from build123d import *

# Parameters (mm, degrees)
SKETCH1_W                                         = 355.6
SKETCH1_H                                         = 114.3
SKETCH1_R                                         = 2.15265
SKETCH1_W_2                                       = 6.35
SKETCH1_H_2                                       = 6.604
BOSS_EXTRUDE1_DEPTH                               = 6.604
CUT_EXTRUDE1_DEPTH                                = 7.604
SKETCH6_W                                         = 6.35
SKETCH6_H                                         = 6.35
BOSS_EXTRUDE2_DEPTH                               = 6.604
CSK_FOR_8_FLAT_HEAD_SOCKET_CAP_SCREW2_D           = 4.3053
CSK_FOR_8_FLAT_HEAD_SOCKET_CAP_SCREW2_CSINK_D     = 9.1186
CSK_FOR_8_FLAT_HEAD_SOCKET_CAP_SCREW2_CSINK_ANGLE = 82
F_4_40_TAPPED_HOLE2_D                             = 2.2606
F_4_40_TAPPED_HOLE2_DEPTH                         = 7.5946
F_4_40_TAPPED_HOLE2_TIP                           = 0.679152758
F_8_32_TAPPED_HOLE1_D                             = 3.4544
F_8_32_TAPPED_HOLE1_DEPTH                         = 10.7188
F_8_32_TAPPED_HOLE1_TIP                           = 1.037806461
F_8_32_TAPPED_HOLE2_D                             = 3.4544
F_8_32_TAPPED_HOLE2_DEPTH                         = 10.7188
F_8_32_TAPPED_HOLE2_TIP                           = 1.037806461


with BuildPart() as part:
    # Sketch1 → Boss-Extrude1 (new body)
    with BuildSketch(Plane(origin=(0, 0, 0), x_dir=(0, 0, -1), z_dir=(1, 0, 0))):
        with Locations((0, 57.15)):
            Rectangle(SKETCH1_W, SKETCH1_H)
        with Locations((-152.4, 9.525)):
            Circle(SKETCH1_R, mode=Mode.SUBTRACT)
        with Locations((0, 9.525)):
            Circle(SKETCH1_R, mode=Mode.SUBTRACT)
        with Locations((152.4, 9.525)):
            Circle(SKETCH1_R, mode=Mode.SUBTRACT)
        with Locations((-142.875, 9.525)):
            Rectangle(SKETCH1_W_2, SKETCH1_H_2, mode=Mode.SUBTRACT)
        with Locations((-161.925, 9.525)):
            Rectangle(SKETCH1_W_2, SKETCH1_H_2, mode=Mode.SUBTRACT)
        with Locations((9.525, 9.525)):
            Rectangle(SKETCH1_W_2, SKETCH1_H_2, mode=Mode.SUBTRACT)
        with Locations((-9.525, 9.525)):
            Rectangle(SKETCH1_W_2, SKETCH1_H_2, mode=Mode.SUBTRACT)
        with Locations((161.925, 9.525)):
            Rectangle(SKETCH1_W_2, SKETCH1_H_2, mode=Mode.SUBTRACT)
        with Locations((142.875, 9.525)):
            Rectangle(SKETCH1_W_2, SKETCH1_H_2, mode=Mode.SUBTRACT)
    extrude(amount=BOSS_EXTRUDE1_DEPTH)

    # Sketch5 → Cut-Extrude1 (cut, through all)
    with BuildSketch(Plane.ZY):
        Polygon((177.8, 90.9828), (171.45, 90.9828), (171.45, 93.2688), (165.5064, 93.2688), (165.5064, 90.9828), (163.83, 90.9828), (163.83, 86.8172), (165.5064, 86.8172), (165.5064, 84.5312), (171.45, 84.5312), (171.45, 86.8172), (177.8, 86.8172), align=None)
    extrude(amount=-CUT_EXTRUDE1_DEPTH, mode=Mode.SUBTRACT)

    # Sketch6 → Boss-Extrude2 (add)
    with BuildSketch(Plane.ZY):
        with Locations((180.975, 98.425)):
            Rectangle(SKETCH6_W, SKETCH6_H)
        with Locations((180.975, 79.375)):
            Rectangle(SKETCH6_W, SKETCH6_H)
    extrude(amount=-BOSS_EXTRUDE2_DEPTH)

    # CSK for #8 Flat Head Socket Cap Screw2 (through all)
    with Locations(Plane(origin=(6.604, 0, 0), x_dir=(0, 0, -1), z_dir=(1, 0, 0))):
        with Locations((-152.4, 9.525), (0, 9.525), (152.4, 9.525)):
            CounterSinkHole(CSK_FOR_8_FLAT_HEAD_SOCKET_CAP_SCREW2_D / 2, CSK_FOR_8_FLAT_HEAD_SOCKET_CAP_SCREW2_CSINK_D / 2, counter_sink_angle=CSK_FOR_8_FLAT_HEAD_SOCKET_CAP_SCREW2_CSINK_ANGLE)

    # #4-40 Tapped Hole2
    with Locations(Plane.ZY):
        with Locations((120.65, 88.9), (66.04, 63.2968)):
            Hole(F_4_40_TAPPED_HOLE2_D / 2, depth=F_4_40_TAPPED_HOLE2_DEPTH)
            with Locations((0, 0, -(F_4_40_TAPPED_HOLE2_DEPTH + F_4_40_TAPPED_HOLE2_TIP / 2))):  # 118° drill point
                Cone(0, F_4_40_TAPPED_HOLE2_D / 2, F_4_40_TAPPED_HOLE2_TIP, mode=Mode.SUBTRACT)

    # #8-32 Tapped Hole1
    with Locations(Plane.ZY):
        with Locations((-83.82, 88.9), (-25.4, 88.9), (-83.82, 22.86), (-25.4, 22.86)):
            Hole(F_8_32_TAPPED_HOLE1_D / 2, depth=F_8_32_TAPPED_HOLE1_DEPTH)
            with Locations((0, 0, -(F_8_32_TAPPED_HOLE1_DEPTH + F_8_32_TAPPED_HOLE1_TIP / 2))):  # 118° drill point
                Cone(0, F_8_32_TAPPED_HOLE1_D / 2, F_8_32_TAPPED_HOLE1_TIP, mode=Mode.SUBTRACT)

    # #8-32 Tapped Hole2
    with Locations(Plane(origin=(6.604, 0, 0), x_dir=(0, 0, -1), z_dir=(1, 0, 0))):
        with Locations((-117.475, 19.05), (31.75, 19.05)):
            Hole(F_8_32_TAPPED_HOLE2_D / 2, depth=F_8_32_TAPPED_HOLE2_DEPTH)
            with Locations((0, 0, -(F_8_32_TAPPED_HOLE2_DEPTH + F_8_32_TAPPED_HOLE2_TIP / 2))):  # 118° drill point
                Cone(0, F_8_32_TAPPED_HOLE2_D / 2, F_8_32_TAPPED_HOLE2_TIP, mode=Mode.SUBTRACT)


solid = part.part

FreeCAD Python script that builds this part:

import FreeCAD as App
import Part
import Sketcher
from FreeCAD import Vector
Q = App.Units.Quantity

doc = App.newDocument("Part")
body = doc.addObject("PartDesign::Body", "Body")

sketch1 = body.newObject("Sketcher::SketchObject", "Sketch")
sketch1.AttachmentSupport = (doc.getObject("YZ_Plane"), [""])
sketch1.MapMode = "FlatFace"
sketch1.addGeometry(Part.LineSegment(Vector(114.3, 177.8, 0), Vector(0, 177.8, 0)), False)
sketch1.addGeometry(Part.LineSegment(Vector(0, 177.8, 0), Vector(0, -177.8, 0)), False)
sketch1.addGeometry(Part.LineSegment(Vector(0, -177.8, 0), Vector(114.3, -177.8, 0)), False)
sketch1.addGeometry(Part.LineSegment(Vector(114.3, -177.8, 0), Vector(114.3, 177.8, 0)), False)
sketch1.addGeometry(Part.LineSegment(Vector(6.2, 158.8, 0), Vector(6.2, 165.1, 0)), False)
sketch1.addGeometry(Part.LineSegment(Vector(6.2, 165.1, 0), Vector(12.8, 165.1, 0)), False)
sketch1.addGeometry(Part.LineSegment(Vector(12.8, 165.1, 0), Vector(12.8, 158.8, 0)), False)
sketch1.addGeometry(Part.LineSegment(Vector(12.8, 158.8, 0), Vector(6.2, 158.8, 0)), False)
sketch1.addGeometry(Part.Circle(Vector(9.5, 152.4, 0), Vector(0, 0, 1), 2.2), False)
sketch1.addGeometry(Part.LineSegment(Vector(6.2, 139.7, 0), Vector(6.2, 146.1, 0)), False)
sketch1.addGeometry(Part.LineSegment(Vector(6.2, 146.1, 0), Vector(12.8, 146.1, 0)), False)
sketch1.addGeometry(Part.LineSegment(Vector(12.8, 146.1, 0), Vector(12.8, 139.7, 0)), False)
sketch1.addGeometry(Part.LineSegment(Vector(12.8, 139.7, 0), Vector(6.2, 139.7, 0)), False)
sketch1.addGeometry(Part.LineSegment(Vector(6.2, 6.3, 0), Vector(6.2, 12.7, 0)), False)
sketch1.addGeometry(Part.LineSegment(Vector(6.2, 12.7, 0), Vector(12.8, 12.7, 0)), False)
sketch1.addGeometry(Part.LineSegment(Vector(12.8, 12.7, 0), Vector(12.8, 6.3, 0)), False)
sketch1.addGeometry(Part.LineSegment(Vector(12.8, 6.3, 0), Vector(6.2, 6.3, 0)), False)
sketch1.addGeometry(Part.Circle(Vector(9.5, 0, 0), Vector(0, 0, 1), 2.2), False)
sketch1.addGeometry(Part.LineSegment(Vector(6.2, -12.7, 0), Vector(6.2, -6.3, 0)), False)
sketch1.addGeometry(Part.LineSegment(Vector(6.2, -6.3, 0), Vector(12.8, -6.3, 0)), False)
sketch1.addGeometry(Part.LineSegment(Vector(12.8, -6.3, 0), Vector(12.8, -12.7, 0)), False)
sketch1.addGeometry(Part.LineSegment(Vector(12.8, -12.7, 0), Vector(6.2, -12.7, 0)), False)
sketch1.addGeometry(Part.LineSegment(Vector(6.2, -146.1, 0), Vector(6.2, -139.7, 0)), False)
sketch1.addGeometry(Part.LineSegment(Vector(6.2, -139.7, 0), Vector(12.8, -139.7, 0)), False)
sketch1.addGeometry(Part.LineSegment(Vector(12.8, -139.7, 0), Vector(12.8, -146.1, 0)), False)
sketch1.addGeometry(Part.LineSegment(Vector(12.8, -146.1, 0), Vector(6.2, -146.1, 0)), False)
sketch1.addGeometry(Part.Circle(Vector(9.5, -152.4, 0), Vector(0, 0, 1), 2.2), False)
sketch1.addGeometry(Part.LineSegment(Vector(6.2, -165.1, 0), Vector(6.2, -158.8, 0)), False)
sketch1.addGeometry(Part.LineSegment(Vector(6.2, -158.8, 0), Vector(12.8, -158.8, 0)), False)
sketch1.addGeometry(Part.LineSegment(Vector(12.8, -158.8, 0), Vector(12.8, -165.1, 0)), False)
sketch1.addGeometry(Part.LineSegment(Vector(12.8, -165.1, 0), Vector(6.2, -165.1, 0)), False)
sketch1.addConstraint(Sketcher.Constraint("Coincident", 0, 2, 1, 1))
sketch1.addConstraint(Sketcher.Constraint("Coincident", 1, 2, 2, 1))
sketch1.addConstraint(Sketcher.Constraint("Coincident", 2, 2, 3, 1))
sketch1.addConstraint(Sketcher.Constraint("Coincident", 3, 2, 0, 1))
sketch1.addConstraint(Sketcher.Constraint("Coincident", 4, 2, 5, 1))
sketch1.addConstraint(Sketcher.Constraint("Coincident", 5, 2, 6, 1))
sketch1.addConstraint(Sketcher.Constraint("Coincident", 6, 2, 7, 1))
sketch1.addConstraint(Sketcher.Constraint("Coincident", 7, 2, 4, 1))
sketch1.addConstraint(Sketcher.Constraint("Coincident", 9, 2, 10, 1))
sketch1.addConstraint(Sketcher.Constraint("Coincident", 10, 2, 11, 1))
sketch1.addConstraint(Sketcher.Constraint("Coincident", 11, 2, 12, 1))
sketch1.addConstraint(Sketcher.Constraint("Coincident", 12, 2, 9, 1))
sketch1.addConstraint(Sketcher.Constraint("Coincident", 13, 2, 14, 1))
sketch1.addConstraint(Sketcher.Constraint("Coincident", 14, 2, 15, 1))
sketch1.addConstraint(Sketcher.Constraint("Coincident", 15, 2, 16, 1))
sketch1.addConstraint(Sketcher.Constraint("Coincident", 16, 2, 13, 1))
sketch1.addConstraint(Sketcher.Constraint("Coincident", 18, 2, 19, 1))
sketch1.addConstraint(Sketcher.Constraint("Coincident", 19, 2, 20, 1))
sketch1.addConstraint(Sketcher.Constraint("Coincident", 20, 2, 21, 1))
sketch1.addConstraint(Sketcher.Constraint("Coincident", 21, 2, 18, 1))
sketch1.addConstraint(Sketcher.Constraint("Coincident", 22, 2, 23, 1))
sketch1.addConstraint(Sketcher.Constraint("Coincident", 23, 2, 24, 1))
sketch1.addConstraint(Sketcher.Constraint("Coincident", 24, 2, 25, 1))
sketch1.addConstraint(Sketcher.Constraint("Coincident", 25, 2, 22, 1))
sketch1.addConstraint(Sketcher.Constraint("Coincident", 27, 2, 28, 1))
sketch1.addConstraint(Sketcher.Constraint("Coincident", 28, 2, 29, 1))
sketch1.addConstraint(Sketcher.Constraint("Coincident", 29, 2, 30, 1))
sketch1.addConstraint(Sketcher.Constraint("Coincident", 30, 2, 27, 1))
sketch1.addConstraint(Sketcher.Constraint("Horizontal", 0))
sketch1.addConstraint(Sketcher.Constraint("Vertical", 1))
sketch1.addConstraint(Sketcher.Constraint("Horizontal", 2))
sketch1.addConstraint(Sketcher.Constraint("Vertical", 3))
sketch1.addConstraint(Sketcher.Constraint("Vertical", 4))
sketch1.addConstraint(Sketcher.Constraint("Horizontal", 5))
sketch1.addConstraint(Sketcher.Constraint("Vertical", 6))
sketch1.addConstraint(Sketcher.Constraint("Horizontal", 7))
sketch1.addConstraint(Sketcher.Constraint("Vertical", 9))
sketch1.addConstraint(Sketcher.Constraint("Horizontal", 10))
sketch1.addConstraint(Sketcher.Constraint("Vertical", 11))
sketch1.addConstraint(Sketcher.Constraint("Horizontal", 12))
sketch1.addConstraint(Sketcher.Constraint("Vertical", 13))
sketch1.addConstraint(Sketcher.Constraint("Horizontal", 14))
sketch1.addConstraint(Sketcher.Constraint("Vertical", 15))
sketch1.addConstraint(Sketcher.Constraint("Horizontal", 16))
sketch1.addConstraint(Sketcher.Constraint("Vertical", 18))
sketch1.addConstraint(Sketcher.Constraint("Horizontal", 19))
sketch1.addConstraint(Sketcher.Constraint("Vertical", 20))
sketch1.addConstraint(Sketcher.Constraint("Horizontal", 21))
sketch1.addConstraint(Sketcher.Constraint("Vertical", 22))
sketch1.addConstraint(Sketcher.Constraint("Horizontal", 23))
sketch1.addConstraint(Sketcher.Constraint("Vertical", 24))
sketch1.addConstraint(Sketcher.Constraint("Horizontal", 25))
sketch1.addConstraint(Sketcher.Constraint("Vertical", 27))
sketch1.addConstraint(Sketcher.Constraint("Horizontal", 28))
sketch1.addConstraint(Sketcher.Constraint("Vertical", 29))
sketch1.addConstraint(Sketcher.Constraint("Horizontal", 30))
sketch1.addConstraint(Sketcher.Constraint("Equal", 8, 17))
sketch1.addConstraint(Sketcher.Constraint("Equal", 17, 26))
sketch1.addConstraint(Sketcher.Constraint("Symmetric", 0, 2, 1, 2, -1, 1))
sketch1.addConstraint(Sketcher.Constraint("Symmetric", 8, 3, 26, 3, -1))
sketch1.addConstraint(Sketcher.Constraint("Symmetric", 16, 2, 18, 2, -1))
sketch1.addConstraint(Sketcher.Constraint("Symmetric", 14, 2, 20, 2, -1))
sketch1.addConstraint(Sketcher.Constraint("Symmetric", 12, 2, 22, 2, -1))
sketch1.addConstraint(Sketcher.Constraint("Symmetric", 10, 2, 24, 2, -1))
sketch1.addConstraint(Sketcher.Constraint("Symmetric", 7, 2, 27, 2, -1))
sketch1.addConstraint(Sketcher.Constraint("Symmetric", 5, 2, 29, 2, -1))
sketch1.addConstraint(Sketcher.Constraint("PointOnObject", 17, 3, -1))
sketch1.addConstraint(Sketcher.Constraint("Vertical", 8, 3, 17, 3))
sketch1.addConstraint(Sketcher.Constraint("Vertical", 7, 2, 9, 2))
sketch1.addConstraint(Sketcher.Constraint("Vertical", 6, 2, 10, 2))
sketch1.addConstraint(Sketcher.Constraint("Vertical", 12, 2, 13, 2))
sketch1.addConstraint(Sketcher.Constraint("Vertical", 11, 2, 14, 2))
sketch1.addConstraint(Sketcher.Constraint("Equal", 6, 9))
sketch1.addConstraint(Sketcher.Constraint("Equal", 11, 13))
sketch1.addConstraint(Sketcher.Constraint("DistanceY", 1, 2, 1, 1, Q("14 in")))
sketch1.addConstraint(Sketcher.Constraint("DistanceX", 0, 2, 0, 1, Q("4.5 in")))
sketch1.addConstraint(Sketcher.Constraint("DistanceY", -1, 1, 8, 3, Q("6 in")))
sketch1.addConstraint(Sketcher.Constraint("DistanceY", 13, 2, 12, 2, Q("5 in")))
sketch1.addConstraint(Sketcher.Constraint("Diameter", 8, Q("0.1695 in")))
sketch1.addConstraint(Sketcher.Constraint("DistanceX", 5, 1, 5, 2, Q("0.26 in")))
sketch1.addConstraint(Sketcher.Constraint("DistanceY", 4, 1, 4, 2, Q("0.25 in")))
sketch1.addConstraint(Sketcher.Constraint("DistanceY", -1, 1, 4, 2, Q("6.5 in")))
sketch1.addConstraint(Sketcher.Constraint("DistanceY", -1, 1, 11, 2, Q("5.5 in")))
sketch1.addConstraint(Sketcher.Constraint("DistanceX", 4, 2, 8, 3, Q("0.13 in")))
sketch1.addConstraint(Sketcher.Constraint("DistanceX", -1, 1, 8, 3, Q("0.375 in")))
pad1 = body.newObject("PartDesign::Pad", "Pad")
pad1.Profile = sketch1
pad1.Length = Q("0.26 in")

sketch2 = body.newObject("Sketcher::SketchObject", "Sketch001")
sketch2.AttachmentSupport = (doc.getObject("YZ_Plane"), [""])
sketch2.MapMode = "FlatFace"
sketch2.addGeometry(Part.LineSegment(Vector(91, 177.8, 0), Vector(91, 171.4, 0)), False)
sketch2.addGeometry(Part.LineSegment(Vector(91, 171.4, 0), Vector(93.3, 171.4, 0)), False)
sketch2.addGeometry(Part.LineSegment(Vector(93.3, 171.4, 0), Vector(93.3, 165.5, 0)), False)
sketch2.addGeometry(Part.LineSegment(Vector(93.3, 165.5, 0), Vector(91, 165.5, 0)), False)
sketch2.addGeometry(Part.LineSegment(Vector(91, 165.5, 0), Vector(91, 163.8, 0)), False)
sketch2.addGeometry(Part.LineSegment(Vector(91, 163.8, 0), Vector(86.8, 163.8, 0)), False)
sketch2.addGeometry(Part.LineSegment(Vector(86.8, 163.8, 0), Vector(86.8, 165.5, 0)), False)
sketch2.addGeometry(Part.LineSegment(Vector(86.8, 165.5, 0), Vector(84.5, 165.5, 0)), False)
sketch2.addGeometry(Part.LineSegment(Vector(84.5, 165.5, 0), Vector(84.5, 171.4, 0)), False)
sketch2.addGeometry(Part.LineSegment(Vector(84.5, 171.4, 0), Vector(86.8, 171.4, 0)), False)
sketch2.addGeometry(Part.LineSegment(Vector(86.8, 171.4, 0), Vector(86.8, 177.8, 0)), False)
sketch2.addGeometry(Part.LineSegment(Vector(86.8, 177.8, 0), Vector(91, 177.8, 0)), False)
sketch2.addConstraint(Sketcher.Constraint("Coincident", 0, 2, 1, 1))
sketch2.addConstraint(Sketcher.Constraint("Coincident", 1, 2, 2, 1))
sketch2.addConstraint(Sketcher.Constraint("Coincident", 2, 2, 3, 1))
sketch2.addConstraint(Sketcher.Constraint("Coincident", 3, 2, 4, 1))
sketch2.addConstraint(Sketcher.Constraint("Coincident", 4, 2, 5, 1))
sketch2.addConstraint(Sketcher.Constraint("Coincident", 5, 2, 6, 1))
sketch2.addConstraint(Sketcher.Constraint("Coincident", 6, 2, 7, 1))
sketch2.addConstraint(Sketcher.Constraint("Coincident", 7, 2, 8, 1))
sketch2.addConstraint(Sketcher.Constraint("Coincident", 8, 2, 9, 1))
sketch2.addConstraint(Sketcher.Constraint("Coincident", 9, 2, 10, 1))
sketch2.addConstraint(Sketcher.Constraint("Coincident", 10, 2, 11, 1))
sketch2.addConstraint(Sketcher.Constraint("Coincident", 11, 2, 0, 1))
sketch2.addConstraint(Sketcher.Constraint("Vertical", 0))
sketch2.addConstraint(Sketcher.Constraint("Horizontal", 1))
sketch2.addConstraint(Sketcher.Constraint("Vertical", 2))
sketch2.addConstraint(Sketcher.Constraint("Horizontal", 3))
sketch2.addConstraint(Sketcher.Constraint("Vertical", 4))
sketch2.addConstraint(Sketcher.Constraint("Horizontal", 5))
sketch2.addConstraint(Sketcher.Constraint("Vertical", 6))
sketch2.addConstraint(Sketcher.Constraint("Horizontal", 7))
sketch2.addConstraint(Sketcher.Constraint("Vertical", 8))
sketch2.addConstraint(Sketcher.Constraint("Horizontal", 9))
sketch2.addConstraint(Sketcher.Constraint("Vertical", 10))
sketch2.addConstraint(Sketcher.Constraint("Horizontal", 11))
sketch2.addConstraint(Sketcher.Constraint("Horizontal", 3, 2, 6, 2))
sketch2.addConstraint(Sketcher.Constraint("Horizontal", 1, 2, 8, 2))
sketch2.addConstraint(Sketcher.Constraint("Vertical", 0, 2, 3, 2))
sketch2.addConstraint(Sketcher.Constraint("Vertical", 6, 2, 9, 2))
sketch2.addConstraint(Sketcher.Constraint("Equal", 3, 7))
sketch2.addConstraint(Sketcher.Constraint("DistanceY", -1, 1, 10, 2, Q("7 in")))
sketch2.addConstraint(Sketcher.Constraint("DistanceX", 1, 1, 1, 2, Q("0.09 in")))
sketch2.addConstraint(Sketcher.Constraint("DistanceY", 0, 2, 0, 1, Q("0.25 in")))
sketch2.addConstraint(Sketcher.Constraint("DistanceY", 4, 2, 0, 2, Q("0.3 in")))
sketch2.addConstraint(Sketcher.Constraint("DistanceX", 5, 2, 5, 1, Q("0.164 in")))
sketch2.addConstraint(Sketcher.Constraint("DistanceY", 2, 2, 2, 1, Q("0.234 in")))
sketch2.addConstraint(Sketcher.Constraint("DistanceX", -1, 1, 0, 2, Q("3.582 in")))
pocket1 = body.newObject("PartDesign::Pocket", "Pocket")
pocket1.Profile = sketch2
pocket1.Type = "ThroughAll"
pocket1.Reversed = True

sketch3 = body.newObject("Sketcher::SketchObject", "Sketch002")
sketch3.AttachmentSupport = (doc.getObject("YZ_Plane"), [""])
sketch3.MapMode = "FlatFace"
sketch3.addGeometry(Part.LineSegment(Vector(102, 178, 0), Vector(95, 178, 0)), False)
sketch3.addGeometry(Part.LineSegment(Vector(95, 178, 0), Vector(95, 184, 0)), False)
sketch3.addGeometry(Part.LineSegment(Vector(95, 184, 0), Vector(102, 184, 0)), False)
sketch3.addGeometry(Part.LineSegment(Vector(102, 184, 0), Vector(102, 178, 0)), False)
sketch3.addGeometry(Part.LineSegment(Vector(83, 178, 0), Vector(76, 178, 0)), False)
sketch3.addGeometry(Part.LineSegment(Vector(76, 178, 0), Vector(76, 184, 0)), False)
sketch3.addGeometry(Part.LineSegment(Vector(76, 184, 0), Vector(83, 184, 0)), False)
sketch3.addGeometry(Part.LineSegment(Vector(83, 184, 0), Vector(83, 178, 0)), False)
sketch3.addConstraint(Sketcher.Constraint("Coincident", 0, 2, 1, 1))
sketch3.addConstraint(Sketcher.Constraint("Coincident", 1, 2, 2, 1))
sketch3.addConstraint(Sketcher.Constraint("Coincident", 2, 2, 3, 1))
sketch3.addConstraint(Sketcher.Constraint("Coincident", 3, 2, 0, 1))
sketch3.addConstraint(Sketcher.Constraint("Coincident", 4, 2, 5, 1))
sketch3.addConstraint(Sketcher.Constraint("Coincident", 5, 2, 6, 1))
sketch3.addConstraint(Sketcher.Constraint("Coincident", 6, 2, 7, 1))
sketch3.addConstraint(Sketcher.Constraint("Coincident", 7, 2, 4, 1))
sketch3.addConstraint(Sketcher.Constraint("Horizontal", 0))
sketch3.addConstraint(Sketcher.Constraint("Vertical", 1))
sketch3.addConstraint(Sketcher.Constraint("Horizontal", 2))
sketch3.addConstraint(Sketcher.Constraint("Vertical", 3))
sketch3.addConstraint(Sketcher.Constraint("Horizontal", 4))
sketch3.addConstraint(Sketcher.Constraint("Vertical", 5))
sketch3.addConstraint(Sketcher.Constraint("Horizontal", 6))
sketch3.addConstraint(Sketcher.Constraint("Vertical", 7))
sketch3.addConstraint(Sketcher.Constraint("Horizontal", 3, 2, 4, 2))
sketch3.addConstraint(Sketcher.Constraint("Horizontal", 2, 2, 5, 2))
sketch3.addConstraint(Sketcher.Constraint("Equal", 2, 4))
sketch3.addConstraint(Sketcher.Constraint("Equal", 6, 1))
sketch3.addConstraint(Sketcher.Constraint("DistanceY", -1, 1, 0, 2, Q("7 in")))
sketch3.addConstraint(Sketcher.Constraint("DistanceX", -1, 1, 2, 2, Q("4 in")))
sketch3.addConstraint(Sketcher.Constraint("DistanceX", -1, 1, 4, 2, Q("3 in")))
sketch3.addConstraint(Sketcher.Constraint("DistanceX", 0, 2, 0, 1, Q("0.25 in")))
pad2 = body.newObject("PartDesign::Pad", "Pad001")
pad2.Profile = sketch3
pad2.Length = Q("0.26 in")

sketch4 = body.newObject("Sketcher::SketchObject", "Sketch003")
sketch4.AttachmentSupport = (doc.getObject("YZ_Plane"), [""])
sketch4.MapMode = "FlatFace"
sketch4.AttachmentOffset = App.Placement(Vector(0, 0, 0.26 * 25.4), App.Rotation())
sketch4.addGeometry(Part.Circle(Vector(9.5, 152.4, 0), Vector(0, 0, 1), 2.2), False)
sketch4.addGeometry(Part.Circle(Vector(9.5, 0, 0), Vector(0, 0, 1), 2.2), False)
sketch4.addGeometry(Part.Circle(Vector(9.5, -152.4, 0), Vector(0, 0, 1), 2.2), False)
sketch4.addConstraint(Sketcher.Constraint("Equal", 0, 1))
sketch4.addConstraint(Sketcher.Constraint("Equal", 1, 2))
sketch4.addConstraint(Sketcher.Constraint("Symmetric", 0, 3, 2, 3, -1))
sketch4.addConstraint(Sketcher.Constraint("PointOnObject", 1, 3, -1))
sketch4.addConstraint(Sketcher.Constraint("Vertical", 0, 3, 1, 3))
sketch4.addConstraint(Sketcher.Constraint("DistanceY", -1, 1, 0, 3, Q("6 in")))
sketch4.addConstraint(Sketcher.Constraint("Diameter", 0, Q("0.1695 in")))
sketch4.addConstraint(Sketcher.Constraint("DistanceX", -1, 1, 0, 3, Q("0.375 in")))
doc.recompute()
hole = body.newObject("PartDesign::Hole", "Hole")
hole.Profile = sketch4
hole.ThreadType = "None"
hole.Diameter = Q("0.1695 in")
hole.DepthType = "ThroughAll"
hole.HoleCutType = "Countersink"
hole.HoleCutDiameter = Q("0.359 in")
hole.HoleCutCountersinkAngle = 82

sketch5 = body.newObject("Sketcher::SketchObject", "Sketch004")
sketch5.AttachmentSupport = (doc.getObject("YZ_Plane"), [""])
sketch5.MapMode = "FlatFace"
sketch5.addGeometry(Part.Circle(Vector(88.9, 120.7, 0), Vector(0, 0, 1), 1.1), False)
sketch5.addGeometry(Part.Circle(Vector(63.3, 66, 0), Vector(0, 0, 1), 1.1), False)
sketch5.addConstraint(Sketcher.Constraint("Equal", 0, 1))
sketch5.addConstraint(Sketcher.Constraint("Diameter", 0, Q("0.089 in")))
sketch5.addConstraint(Sketcher.Constraint("DistanceX", -1, 1, 0, 3, Q("3.5 in")))
sketch5.addConstraint(Sketcher.Constraint("DistanceY", -1, 1, 1, 3, Q("2.6 in")))
sketch5.addConstraint(Sketcher.Constraint("DistanceY", -1, 1, 0, 3, Q("4.75 in")))
sketch5.addConstraint(Sketcher.Constraint("DistanceX", -1, 1, 1, 3, Q("2.492 in")))
doc.recompute()
hole2 = body.newObject("PartDesign::Hole", "Hole001")
hole2.Profile = sketch5
hole2.ThreadType = "None"
hole2.Diameter = Q("0.089 in")
hole2.DepthType = "Dimension"
hole2.Depth = Q("0.299 in")
hole2.DrillPoint = "Angled"
hole2.DrillPointAngle = 118
hole2.Reversed = True

sketch6 = body.newObject("Sketcher::SketchObject", "Sketch005")
sketch6.AttachmentSupport = (doc.getObject("YZ_Plane"), [""])
sketch6.MapMode = "FlatFace"
sketch6.addGeometry(Part.Circle(Vector(88.9, -83.8, 0), Vector(0, 0, 1), 1.7), False)
sketch6.addGeometry(Part.Circle(Vector(88.9, -25.4, 0), Vector(0, 0, 1), 1.7), False)
sketch6.addGeometry(Part.Circle(Vector(22.9, -83.8, 0), Vector(0, 0, 1), 1.7), False)
sketch6.addGeometry(Part.Circle(Vector(22.9, -25.4, 0), Vector(0, 0, 1), 1.7), False)
sketch6.addConstraint(Sketcher.Constraint("Equal", 0, 1))
sketch6.addConstraint(Sketcher.Constraint("Equal", 1, 2))
sketch6.addConstraint(Sketcher.Constraint("Equal", 2, 3))
sketch6.addConstraint(Sketcher.Constraint("Horizontal", 0, 3, 2, 3))
sketch6.addConstraint(Sketcher.Constraint("Horizontal", 1, 3, 3, 3))
sketch6.addConstraint(Sketcher.Constraint("Vertical", 0, 3, 1, 3))
sketch6.addConstraint(Sketcher.Constraint("Vertical", 2, 3, 3, 3))
sketch6.addConstraint(Sketcher.Constraint("Diameter", 0, Q("0.136 in")))
sketch6.addConstraint(Sketcher.Constraint("DistanceY", 1, 3, -1, 1, Q("1 in")))
sketch6.addConstraint(Sketcher.Constraint("DistanceX", -1, 1, 0, 3, Q("3.5 in")))
sketch6.addConstraint(Sketcher.Constraint("DistanceY", 0, 3, -1, 1, Q("3.3 in")))
sketch6.addConstraint(Sketcher.Constraint("DistanceX", -1, 1, 2, 3, Q("0.9 in")))
doc.recompute()
hole3 = body.newObject("PartDesign::Hole", "Hole002")
hole3.Profile = sketch6
hole3.ThreadType = "None"
hole3.Diameter = Q("0.136 in")
hole3.DepthType = "Dimension"
hole3.Depth = Q("0.422 in")
hole3.DrillPoint = "Angled"
hole3.DrillPointAngle = 118
hole3.Reversed = True

sketch7 = body.newObject("Sketcher::SketchObject", "Sketch006")
sketch7.AttachmentSupport = (doc.getObject("YZ_Plane"), [""])
sketch7.MapMode = "FlatFace"
sketch7.AttachmentOffset = App.Placement(Vector(0, 0, 0.26 * 25.4), App.Rotation())
sketch7.addGeometry(Part.Circle(Vector(19.1, 117.5, 0), Vector(0, 0, 1), 1.7), False)
sketch7.addGeometry(Part.Circle(Vector(19.1, -31.8, 0), Vector(0, 0, 1), 1.7), False)
sketch7.addConstraint(Sketcher.Constraint("Equal", 0, 1))
sketch7.addConstraint(Sketcher.Constraint("Vertical", 0, 3, 1, 3))
sketch7.addConstraint(Sketcher.Constraint("Diameter", 0, Q("0.136 in")))
sketch7.addConstraint(Sketcher.Constraint("DistanceX", -1, 1, 0, 3, Q("0.75 in")))
sketch7.addConstraint(Sketcher.Constraint("DistanceY", 1, 3, -1, 1, Q("1.25 in")))
sketch7.addConstraint(Sketcher.Constraint("DistanceY", -1, 1, 0, 3, Q("4.625 in")))
doc.recompute()
hole4 = body.newObject("PartDesign::Hole", "Hole003")
hole4.Profile = sketch7
hole4.ThreadType = "None"
hole4.Diameter = Q("0.136 in")
hole4.DepthType = "Dimension"
hole4.Depth = Q("0.422 in")
hole4.DrillPoint = "Angled"
hole4.DrillPointAngle = 118

doc.recompute()
